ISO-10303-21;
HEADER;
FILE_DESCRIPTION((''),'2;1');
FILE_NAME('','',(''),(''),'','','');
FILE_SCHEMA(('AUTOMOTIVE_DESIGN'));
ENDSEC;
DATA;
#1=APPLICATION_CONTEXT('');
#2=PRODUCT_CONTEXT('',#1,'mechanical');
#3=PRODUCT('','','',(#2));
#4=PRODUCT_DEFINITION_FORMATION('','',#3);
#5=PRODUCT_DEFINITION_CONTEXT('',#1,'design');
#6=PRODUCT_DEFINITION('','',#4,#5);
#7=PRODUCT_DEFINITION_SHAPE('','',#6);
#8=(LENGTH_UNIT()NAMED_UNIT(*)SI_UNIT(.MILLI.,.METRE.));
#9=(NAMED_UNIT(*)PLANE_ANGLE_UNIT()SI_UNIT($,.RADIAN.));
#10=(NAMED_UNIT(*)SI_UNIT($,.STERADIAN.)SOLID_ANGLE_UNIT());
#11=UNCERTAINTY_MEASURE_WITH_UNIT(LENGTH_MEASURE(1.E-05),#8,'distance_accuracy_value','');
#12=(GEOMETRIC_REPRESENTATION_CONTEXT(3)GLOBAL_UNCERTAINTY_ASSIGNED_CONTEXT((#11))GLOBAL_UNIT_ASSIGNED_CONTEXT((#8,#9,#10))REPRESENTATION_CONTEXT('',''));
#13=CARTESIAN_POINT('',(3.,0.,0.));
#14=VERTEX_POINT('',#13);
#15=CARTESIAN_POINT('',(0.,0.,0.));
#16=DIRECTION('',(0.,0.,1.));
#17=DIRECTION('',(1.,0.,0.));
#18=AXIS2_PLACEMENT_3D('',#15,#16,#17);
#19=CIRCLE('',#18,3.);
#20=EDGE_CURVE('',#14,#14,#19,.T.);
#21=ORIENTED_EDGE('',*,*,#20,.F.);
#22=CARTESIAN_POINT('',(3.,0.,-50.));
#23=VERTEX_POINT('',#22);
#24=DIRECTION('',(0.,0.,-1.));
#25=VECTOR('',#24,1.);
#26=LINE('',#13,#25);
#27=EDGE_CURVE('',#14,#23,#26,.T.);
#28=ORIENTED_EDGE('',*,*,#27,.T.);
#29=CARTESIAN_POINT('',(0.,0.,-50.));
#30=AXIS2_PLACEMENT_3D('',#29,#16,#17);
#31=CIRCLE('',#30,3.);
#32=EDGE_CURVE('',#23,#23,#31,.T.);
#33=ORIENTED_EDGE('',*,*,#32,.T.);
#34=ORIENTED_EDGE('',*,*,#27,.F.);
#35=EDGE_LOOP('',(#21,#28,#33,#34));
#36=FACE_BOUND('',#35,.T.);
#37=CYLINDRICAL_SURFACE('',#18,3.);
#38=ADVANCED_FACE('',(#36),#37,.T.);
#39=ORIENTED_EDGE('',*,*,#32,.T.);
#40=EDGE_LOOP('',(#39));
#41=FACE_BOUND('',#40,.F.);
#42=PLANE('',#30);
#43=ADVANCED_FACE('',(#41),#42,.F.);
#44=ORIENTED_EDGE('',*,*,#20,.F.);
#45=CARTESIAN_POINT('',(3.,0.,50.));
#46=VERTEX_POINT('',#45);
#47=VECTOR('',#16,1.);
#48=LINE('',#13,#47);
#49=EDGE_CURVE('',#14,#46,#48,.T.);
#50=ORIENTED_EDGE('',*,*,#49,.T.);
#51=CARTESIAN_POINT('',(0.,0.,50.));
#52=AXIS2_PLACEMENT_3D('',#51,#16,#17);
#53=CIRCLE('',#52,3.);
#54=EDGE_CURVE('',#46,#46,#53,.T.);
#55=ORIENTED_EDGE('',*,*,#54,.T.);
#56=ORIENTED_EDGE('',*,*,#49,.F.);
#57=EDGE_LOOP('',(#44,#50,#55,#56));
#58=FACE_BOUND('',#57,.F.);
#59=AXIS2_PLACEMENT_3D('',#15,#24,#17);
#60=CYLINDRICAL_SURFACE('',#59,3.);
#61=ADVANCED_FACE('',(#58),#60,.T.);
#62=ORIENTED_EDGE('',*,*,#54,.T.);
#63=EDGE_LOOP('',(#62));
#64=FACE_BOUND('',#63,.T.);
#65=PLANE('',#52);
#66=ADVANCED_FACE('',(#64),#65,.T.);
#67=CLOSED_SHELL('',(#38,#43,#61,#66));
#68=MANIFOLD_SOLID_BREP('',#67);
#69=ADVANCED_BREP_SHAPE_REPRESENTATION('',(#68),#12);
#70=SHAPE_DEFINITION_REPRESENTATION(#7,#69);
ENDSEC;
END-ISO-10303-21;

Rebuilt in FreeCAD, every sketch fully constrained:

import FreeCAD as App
import Part
import Sketcher
Q = App.Units.Quantity

doc = App.newDocument("Part")
body = doc.addObject("PartDesign::Body", "Body")

sketch1 = body.newObject("Sketcher::SketchObject", "Sketch")
sketch1.AttachmentSupport = (doc.getObject("XY_Plane"), [""])
sketch1.MapMode = "FlatFace"
sketch1.addGeometry(Part.Circle(App.Vector(0, 0, 0), App.Vector(0, 0, 1), 3), False)
sketch1.addConstraint(Sketcher.Constraint("Coincident", 0, 3, -1, 1))
sketch1.addConstraint(Sketcher.Constraint("Diameter", 0, Q("6 mm")))
pad1 = body.newObject("PartDesign::Pad", "Pad")
pad1.Profile = sketch1
pad1.Length = 100
pad1.Midplane = True

doc.recompute()
